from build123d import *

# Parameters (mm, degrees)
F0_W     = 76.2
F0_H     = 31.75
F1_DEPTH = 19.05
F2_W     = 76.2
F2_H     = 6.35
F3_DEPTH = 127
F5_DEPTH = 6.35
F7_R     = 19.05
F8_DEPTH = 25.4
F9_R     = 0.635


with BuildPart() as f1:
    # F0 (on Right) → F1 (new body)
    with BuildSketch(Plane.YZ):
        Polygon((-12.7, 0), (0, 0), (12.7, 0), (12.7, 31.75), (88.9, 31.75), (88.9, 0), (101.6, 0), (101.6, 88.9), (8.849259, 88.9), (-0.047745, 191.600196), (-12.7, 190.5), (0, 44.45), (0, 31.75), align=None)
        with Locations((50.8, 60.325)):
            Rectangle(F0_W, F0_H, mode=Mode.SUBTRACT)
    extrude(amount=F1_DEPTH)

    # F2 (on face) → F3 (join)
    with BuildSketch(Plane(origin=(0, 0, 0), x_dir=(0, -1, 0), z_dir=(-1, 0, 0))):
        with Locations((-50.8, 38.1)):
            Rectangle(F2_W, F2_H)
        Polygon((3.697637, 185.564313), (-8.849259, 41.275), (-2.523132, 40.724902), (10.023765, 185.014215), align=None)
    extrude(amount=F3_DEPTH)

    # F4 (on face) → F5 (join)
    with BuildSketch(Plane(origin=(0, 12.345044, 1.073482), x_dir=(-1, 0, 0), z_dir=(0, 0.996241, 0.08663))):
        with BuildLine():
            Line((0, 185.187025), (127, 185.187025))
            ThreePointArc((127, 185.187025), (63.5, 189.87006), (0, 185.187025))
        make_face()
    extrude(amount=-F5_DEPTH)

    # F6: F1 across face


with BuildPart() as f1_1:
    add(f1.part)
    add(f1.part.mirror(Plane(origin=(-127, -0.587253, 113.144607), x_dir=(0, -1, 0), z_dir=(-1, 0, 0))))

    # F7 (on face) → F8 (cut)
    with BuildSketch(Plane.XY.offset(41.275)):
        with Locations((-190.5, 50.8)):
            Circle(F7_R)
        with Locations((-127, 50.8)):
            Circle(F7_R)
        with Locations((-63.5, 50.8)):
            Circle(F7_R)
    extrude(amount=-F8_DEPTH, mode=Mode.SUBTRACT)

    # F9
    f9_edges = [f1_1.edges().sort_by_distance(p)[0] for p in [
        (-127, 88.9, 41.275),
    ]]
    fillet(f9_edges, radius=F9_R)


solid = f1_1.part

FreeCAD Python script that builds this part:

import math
import FreeCAD as App
import Part
import Sketcher
from FreeCAD import Vector
Q = App.Units.Quantity


def edges_at(feature, points):
    """Names of the edges that pass closest to the given points."""
    edges = feature.Shape.Edges
    near = lambda p: min(range(len(edges)), key=lambda i: edges[i].distToShape(Part.Vertex(*p))[0])
    return sorted({f"Edge{near(p) + 1}" for p in points})

doc = App.newDocument("Part")
params = doc.addObject("Spreadsheet::Sheet", "Params")
for row, (alias, value) in enumerate([
    ("sketch1_width", "1 in"),
    ("sketch1_width2", "3 in"),
    ("sketch1_width3", "0.5 in"),
    ("sketch1_height", "3.5 in"),
    ("sketch1_length", "0.5 in"),
    ("pad1_length", "0.75 in"),
    ("sketch2_width", "3 in"),
    ("sketch2_height", "0.25 in"),
    ("sketch2_length", "0.25 in"),
    ("pad2_length", "5 in"),
    ("sketch3_width", "5 in"),
    ("pad3_length", "0.25 in"),
    ("sketch4_diameter", "1.5 in"),
    ("pocket1_length", "1 in"),
    ("fillet_radius", "0.025 in"),
], start=1):
    params.set(f"A{row}", alias)
    params.set(f"B{row}", "=" + value)
    params.setAlias(f"B{row}", alias)

body = doc.addObject("PartDesign::Body", "Body")

# Sketch on YZ plane
sketch1 = doc.addObject("Sketcher::SketchObject", "Sketch")
body.addObject(sketch1)
sketch1.AttachmentSupport = (doc.YZ_Plane, [""])
sketch1.MapMode = "FlatFace"
sketch1.addGeometry(Part.LineSegment(Vector(-13, 0, 0), Vector(13, 0, 0)), False)
sketch1.addGeometry(Part.LineSegment(Vector(13, 0, 0), Vector(13, 32, 0)), False)
sketch1.addGeometry(Part.LineSegment(Vector(13, 32, 0), Vector(89, 32, 0)), False)
sketch1.addGeometry(Part.LineSegment(Vector(89, 32, 0), Vector(89, 0, 0)), False)
sketch1.addGeometry(Part.LineSegment(Vector(89, 0, 0), Vector(102, 0, 0)), False)
sketch1.addGeometry(Part.LineSegment(Vector(102, 0, 0), Vector(102, 89, 0)), False)
sketch1.addGeometry(Part.LineSegment(Vector(102, 89, 0), Vector(9, 89, 0)), False)
sketch1.addGeometry(Part.LineSegment(Vector(9, 89, 0), Vector(0, 192, 0)), False)
sketch1.addGeometry(Part.LineSegment(Vector(0, 192, 0), Vector(-13, 190, 0)), False)
sketch1.addGeometry(Part.LineSegment(Vector(-13, 190, 0), Vector(0, 44, 0)), False)
sketch1.addGeometry(Part.LineSegment(Vector(0, 44, 0), Vector(0, 32, 0)), False)
sketch1.addGeometry(Part.LineSegment(Vector(0, 32, 0), Vector(-13, 0, 0)), False)
sketch1.addGeometry(Part.LineSegment(Vector(89, 44, 0), Vector(13, 44, 0)), False)
sketch1.addGeometry(Part.LineSegment(Vector(13, 44, 0), Vector(13, 76, 0)), False)
sketch1.addGeometry(Part.LineSegment(Vector(13, 76, 0), Vector(89, 76, 0)), False)
sketch1.addGeometry(Part.LineSegment(Vector(89, 76, 0), Vector(89, 44, 0)), False)
sketch1.addConstraint(Sketcher.Constraint("Coincident", 0, 2, 1, 1))
sketch1.addConstraint(Sketcher.Constraint("Coincident", 1, 2, 2, 1))
sketch1.addConstraint(Sketcher.Constraint("Coincident", 2, 2, 3, 1))
sketch1.addConstraint(Sketcher.Constraint("Coincident", 3, 2, 4, 1))
sketch1.addConstraint(Sketcher.Constraint("Coincident", 4, 2, 5, 1))
sketch1.addConstraint(Sketcher.Constraint("Coincident", 5, 2, 6, 1))
sketch1.addConstraint(Sketcher.Constraint("Coincident", 6, 2, 7, 1))
sketch1.addConstraint(Sketcher.Constraint("Coincident", 7, 2, 8, 1))
sketch1.addConstraint(Sketcher.Constraint("Coincident", 8, 2, 9, 1))
sketch1.addConstraint(Sketcher.Constraint("Coincident", 9, 2, 10, 1))
sketch1.addConstraint(Sketcher.Constraint("Coincident", 10, 2, 11, 1))
sketch1.addConstraint(Sketcher.Constraint("Coincident", 11, 2, 0, 1))
sketch1.addConstraint(Sketcher.Constraint("Coincident", 12, 2, 13, 1))
sketch1.addConstraint(Sketcher.Constraint("Coincident", 13, 2, 14, 1))
sketch1.addConstraint(Sketcher.Constraint("Coincident", 14, 2, 15, 1))
sketch1.addConstraint(Sketcher.Constraint("Coincident", 15, 2, 12, 1))
sketch1.addConstraint(Sketcher.Constraint("Horizontal", 0))
sketch1.addConstraint(Sketcher.Constraint("Vertical", 1))
sketch1.addConstraint(Sketcher.Constraint("Horizontal", 2))
sketch1.addConstraint(Sketcher.Constraint("Vertical", 3))
sketch1.addConstraint(Sketcher.Constraint("Horizontal", 4))
sketch1.addConstraint(Sketcher.Constraint("Vertical", 5))
sketch1.addConstraint(Sketcher.Constraint("Horizontal", 6))
sketch1.addConstraint(Sketcher.Constraint("Vertical", 10))
sketch1.addConstraint(Sketcher.Constraint("Horizontal", 12))
sketch1.addConstraint(Sketcher.Constraint("Vertical", 13))
sketch1.addConstraint(Sketcher.Constraint("Horizontal", 14))
sketch1.addConstraint(Sketcher.Constraint("Vertical", 15))
sketch1.addConstraint(Sketcher.Constraint("Symmetric", 0, 2, 11, 2, -1, 1))
sketch1.addConstraint(Sketcher.Constraint("PointOnObject", 3, 2, -1))
sketch1.addConstraint(Sketcher.Constraint("PointOnObject", 9, 2, -2))
sketch1.addConstraint(Sketcher.Constraint("Perpendicular", 8, 9))
sketch1.addConstraint(Sketcher.Constraint("Horizontal", 2, 2, 10, 2))
sketch1.addConstraint(Sketcher.Constraint("Horizontal", 9, 2, 12, 2))
sketch1.addConstraint(Sketcher.Constraint("Vertical", 8, 2, 11, 2))
sketch1.addConstraint(Sketcher.Constraint("Vertical", 1, 2, 12, 2))
sketch1.addConstraint(Sketcher.Constraint("Vertical", 3, 2, 14, 2))
sketch1.addConstraint(Sketcher.Constraint("Equal", 4, 10))
sketch1.addConstraint(Sketcher.Constraint("Equal", 3, 13))
sketch1.addConstraint(Sketcher.Constraint("DistanceX", 0, 1, 0, 2, Q("1 in")))
sketch1.addConstraint(Sketcher.Constraint("DistanceX", 2, 1, 2, 2, Q("3 in")))
sketch1.addConstraint(Sketcher.Constraint("DistanceX", 4, 1, 4, 2, Q("0.5 in")))
sketch1.addConstraint(Sketcher.Constraint("DistanceY", 5, 1, 5, 2, Q("3.5 in")))
sketch1.addConstraint(Sketcher.Constraint("DistanceY", -1, 1, 13, 2, Q("3 in")))
sketch1.addConstraint(Sketcher.Constraint("DistanceY", 6, 2, 8, 2, Q("4 in")))
sketch1.addConstraint(Sketcher.Constraint("Distance", 8, Q("0.5 in")))
sketch1.addConstraint(Sketcher.Constraint("DistanceX", 6, 2, 6, 1, 92.750741))
sketch1.setExpression("Constraints[39]", "Params.sketch1_width")
sketch1.setExpression("Constraints[40]", "Params.sketch1_width2")
sketch1.setExpression("Constraints[41]", "Params.sketch1_width3")
sketch1.setExpression("Constraints[42]", "Params.sketch1_height")
sketch1.setExpression("Constraints[45]", "Params.sketch1_length")
pad1 = doc.addObject("PartDesign::Pad", "Pad")
body.addObject(pad1)
pad1.Profile = sketch1
pad1.setExpression("Length", "Params.pad1_length")

# Sketch on YZ plane
sketch2 = doc.addObject("Sketcher::SketchObject", "Sketch001")
body.addObject(sketch2)
sketch2.AttachmentSupport = (doc.YZ_Plane, [""])
sketch2.MapMode = "FlatFace"
sketch2.addGeometry(Part.LineSegment(Vector(89, 41, 0), Vector(89, 35, 0)), False)
sketch2.addGeometry(Part.LineSegment(Vector(89, 35, 0), Vector(13, 35, 0)), False)
sketch2.addGeometry(Part.LineSegment(Vector(13, 35, 0), Vector(13, 41, 0)), False)
sketch2.addGeometry(Part.LineSegment(Vector(13, 41, 0), Vector(89, 41, 0)), False)
sketch2.addGeometry(Part.LineSegment(Vector(-4, 186, 0), Vector(9, 41, 0)), False)
sketch2.addGeometry(Part.LineSegment(Vector(9, 41, 0), Vector(3, 41, 0)), False)
sketch2.addGeometry(Part.LineSegment(Vector(3, 41, 0), Vector(-10, 185, 0)), False)
sketch2.addGeometry(Part.LineSegment(Vector(-10, 185, 0), Vector(-4, 186, 0)), False)
sketch2.addConstraint(Sketcher.Constraint("Coincident", 0, 2, 1, 1))
sketch2.addConstraint(Sketcher.Constraint("Coincident", 1, 2, 2, 1))
sketch2.addConstraint(Sketcher.Constraint("Coincident", 2, 2, 3, 1))
sketch2.addConstraint(Sketcher.Constraint("Coincident", 3, 2, 0, 1))
sketch2.addConstraint(Sketcher.Constraint("Coincident", 4, 2, 5, 1))
sketch2.addConstraint(Sketcher.Constraint("Coincident", 5, 2, 6, 1))
sketch2.addConstraint(Sketcher.Constraint("Coincident", 6, 2, 7, 1))
sketch2.addConstraint(Sketcher.Constraint("Coincident", 7, 2, 4, 1))
sketch2.addConstraint(Sketcher.Constraint("Vertical", 0))
sketch2.addConstraint(Sketcher.Constraint("Horizontal", 1))
sketch2.addConstraint(Sketcher.Constraint("Vertical", 2))
sketch2.addConstraint(Sketcher.Constraint("Horizontal", 3))
sketch2.addConstraint(Sketcher.Constraint("Perpendicular", 4, 5))
sketch2.addConstraint(Sketcher.Constraint("Perpendicular", 5, 6))
sketch2.addConstraint(Sketcher.Constraint("Perpendicular", 6, 7))
sketch2.addConstraint(Sketcher.Constraint("Horizontal", 3, 2, 4, 2))
sketch2.addConstraint(Sketcher.Constraint("DistanceX", 1, 2, 1, 1, Q("3 in")))
sketch2.addConstraint(Sketcher.Constraint("DistanceY", 0, 2, 0, 1, Q("0.25 in")))
sketch2.addConstraint(Sketcher.Constraint("DistanceX", -1, 1, 0, 2, Q("3.5 in")))
sketch2.addConstraint(Sketcher.Constraint("Distance", 5, Q("0.25 in")))
sketch2.addConstraint(Sketcher.Constraint("DistanceY", -1, 1, 0, 2, Q("1.375 in")))
sketch2.addConstraint(Sketcher.Constraint("DistanceX", -1, 1, 4, 2, 8.849259))
sketch2.addConstraint(Sketcher.Constraint("DistanceX", 7, 2, 5, 2, 6.220769))
sketch2.addConstraint(Sketcher.Constraint("DistanceY", 5, 2, 7, 2, 144.839411))
sketch2.setExpression("Constraints[16]", "Params.sketch2_width")
sketch2.setExpression("Constraints[17]", "Params.sketch2_height")
sketch2.setExpression("Constraints[19]", "Params.sketch2_length")
pad2 = doc.addObject("PartDesign::Pad", "Pad001")
body.addObject(pad2)
pad2.Profile = sketch2
pad2.setExpression("Length", "Params.pad2_length")
pad2.Reversed = True

# Sketch on an angled plane
sketch3 = doc.addObject("Sketcher::SketchObject", "Sketch002")
body.addObject(sketch3)
sketch3.Placement = App.Placement(Vector(0, 12.345044, 1.073482), App.Rotation(Vector(-1, 0, 0), Vector(0, -0.086629962, 0.996240558), Vector(0, 0.996240558, 0.086629962), "ZXY"))
sketch3.addGeometry(Part.LineSegment(Vector(0, 185, 0), Vector(127, 185, 0)), False)
sketch3.addGeometry(Part.ArcOfCircle(Part.Circle(Vector(64, -243, 0), Vector(0, 0, 1), 433), math.radians(81.56), math.radians(98.44)), False)
sketch3.addConstraint(Sketcher.Constraint("Coincident", 0, 1, 1, 2))
sketch3.addConstraint(Sketcher.Constraint("Coincident", 1, 1, 0, 2))
sketch3.addConstraint(Sketcher.Constraint("Horizontal", 0))
sketch3.addConstraint(Sketcher.Constraint("PointOnObject", 0, 1, -2))
sketch3.addConstraint(Sketcher.Constraint("DistanceX", 0, 1, 0, 2, Q("5 in")))
sketch3.addConstraint(Sketcher.Constraint("Radius", 1, 432.858266))
sketch3.addConstraint(Sketcher.Constraint("DistanceY", 1, 3, -1, 1, 242.988206))
sketch3.setExpression("Constraints[4]", "Params.sketch3_width")
pad3 = doc.addObject("PartDesign::Pad", "Pad002")
body.addObject(pad3)
pad3.Profile = sketch3
pad3.setExpression("Length", "Params.pad3_length")
pad3.Reversed = True
body2 = doc.addObject("PartDesign::Body", "Body001")
doc.recompute()

body2.BaseFeature = body
doc.recompute()

mirroring = doc.addObject("Part::Mirroring", "Mirroring")
mirroring.Source = body
mirroring.Base = Vector(-127, -0.587253, 113.144607)
mirroring.Normal = Vector(-1, 0, 0)
body3 = doc.addObject("PartDesign::Body", "Body002")
body3.BaseFeature = mirroring
boolean = doc.addObject("PartDesign::Boolean", "Boolean")
body2.addObject(boolean)
boolean.Type = "Fuse"
boolean.addObjects([body3])
doc.recompute()

# Sketch on XY plane
sketch4 = doc.addObject("Sketcher::SketchObject", "Sketch003")
body2.addObject(sketch4)
sketch4.AttachmentSupport = (doc.getObject("XY_Plane001"), [""])
sketch4.MapMode = "FlatFace"
sketch4.AttachmentOffset = App.Placement(Vector(0, 0, 1.625 * 25.4), App.Rotation())
sketch4.addGeometry(Part.Circle(Vector(-190, 51, 0), Vector(0, 0, 1), 19), False)
sketch4.addGeometry(Part.Circle(Vector(-127, 51, 0), Vector(0, 0, 1), 19), False)
sketch4.addGeometry(Part.Circle(Vector(-64, 51, 0), Vector(0, 0, 1), 19), False)
sketch4.addConstraint(Sketcher.Constraint("Equal", 0, 1))
sketch4.addConstraint(Sketcher.Constraint("Equal", 1, 2))
sketch4.addConstraint(Sketcher.Constraint("Horizontal", 0, 3, 1, 3))
sketch4.addConstraint(Sketcher.Constraint("Horizontal", 1, 3, 2, 3))
sketch4.addConstraint(Sketcher.Constraint("Diameter", 0, Q("1.5 in")))
sketch4.addConstraint(Sketcher.Constraint("DistanceY", -1, 1, 0, 3, Q("2 in")))
sketch4.addConstraint(Sketcher.Constraint("DistanceX", 1, 3, -1, 1, Q("5 in")))
sketch4.addConstraint(Sketcher.Constraint("DistanceX", 0, 3, 2, 3, Q("5 in")))
sketch4.addConstraint(Sketcher.Constraint("DistanceX", 0, 3, -1, 1, Q("7.5 in")))
sketch4.setExpression("Constraints[4]", "Params.sketch4_diameter")
pocket1 = doc.addObject("PartDesign::Pocket", "Pocket")
body2.addObject(pocket1)
pocket1.Profile = sketch4
pocket1.setExpression("Length", "Params.pocket1_length")
doc.recompute()

fillet = doc.addObject("PartDesign::Fillet", "Fillet")
body2.addObject(fillet)
fillet.Base = (pocket1, edges_at(pocket1, [(-127, 88.9, 41.275)]))
fillet.setExpression("Radius", "Params.fillet_radius")
mirroring.Visibility = False

doc.recompute()
